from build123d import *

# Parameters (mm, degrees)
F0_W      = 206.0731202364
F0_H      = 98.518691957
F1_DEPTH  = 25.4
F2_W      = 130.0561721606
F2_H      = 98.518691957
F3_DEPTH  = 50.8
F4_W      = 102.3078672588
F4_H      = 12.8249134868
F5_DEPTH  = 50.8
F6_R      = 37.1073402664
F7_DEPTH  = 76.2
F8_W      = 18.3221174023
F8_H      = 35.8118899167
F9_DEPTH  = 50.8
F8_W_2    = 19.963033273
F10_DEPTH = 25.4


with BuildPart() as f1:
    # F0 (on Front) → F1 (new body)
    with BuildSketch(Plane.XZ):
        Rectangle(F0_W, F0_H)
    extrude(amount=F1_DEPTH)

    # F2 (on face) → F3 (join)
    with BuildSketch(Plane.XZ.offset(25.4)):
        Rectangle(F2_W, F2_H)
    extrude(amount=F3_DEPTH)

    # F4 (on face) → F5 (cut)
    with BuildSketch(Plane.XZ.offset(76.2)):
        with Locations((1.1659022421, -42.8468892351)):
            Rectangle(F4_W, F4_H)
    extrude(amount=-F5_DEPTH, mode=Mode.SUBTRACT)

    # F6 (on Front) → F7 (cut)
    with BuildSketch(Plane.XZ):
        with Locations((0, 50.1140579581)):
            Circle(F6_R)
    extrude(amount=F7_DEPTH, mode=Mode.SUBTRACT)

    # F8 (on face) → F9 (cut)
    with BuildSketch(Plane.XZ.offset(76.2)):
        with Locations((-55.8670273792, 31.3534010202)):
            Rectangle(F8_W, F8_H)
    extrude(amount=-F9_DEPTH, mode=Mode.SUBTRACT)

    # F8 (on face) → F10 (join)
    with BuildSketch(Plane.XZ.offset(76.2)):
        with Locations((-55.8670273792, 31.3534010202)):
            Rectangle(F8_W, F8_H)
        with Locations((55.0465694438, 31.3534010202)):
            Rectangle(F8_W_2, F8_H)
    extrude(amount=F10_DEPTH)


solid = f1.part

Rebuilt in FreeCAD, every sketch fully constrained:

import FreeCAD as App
import Part
import Sketcher

doc = App.newDocument("Part")
params = doc.addObject("Spreadsheet::Sheet", "Params")
for row, (alias, value) in enumerate([
    ("pad1_length", "1 in"),
    ("pad2_length", "2 in"),
    ("pocket1_length", "2 in"),
    ("pocket2_length", "3 in"),
    ("pocket3_length", "2 in"),
    ("pad3_length", "1 in"),
], start=1):
    params.set(f"A{row}", alias)
    params.set(f"B{row}", "=" + value)
    params.setAlias(f"B{row}", alias)

body = doc.addObject("PartDesign::Body", "Body")
body.AllowCompound = True

sketch1 = body.newObject("Sketcher::SketchObject", "Sketch")
sketch1.AttachmentSupport = (doc.getObject("XZ_Plane"), [""])
sketch1.MapMode = "FlatFace"
sketch1.addGeometry(Part.LineSegment(App.Vector(-103.03656, 49.259346, 0), App.Vector(-103.03656, -49.259346, 0)), False)
sketch1.addGeometry(Part.LineSegment(App.Vector(-103.03656, -49.259346, 0), App.Vector(103.03656, -49.259346, 0)), False)
sketch1.addGeometry(Part.LineSegment(App.Vector(103.03656, -49.259346, 0), App.Vector(103.03656, 49.259346, 0)), False)
sketch1.addGeometry(Part.LineSegment(App.Vector(103.03656, 49.259346, 0), App.Vector(-103.03656, 49.259346, 0)), False)
sketch1.addConstraint(Sketcher.Constraint("Coincident", 0, 2, 1, 1))
sketch1.addConstraint(Sketcher.Constraint("Coincident", 1, 2, 2, 1))
sketch1.addConstraint(Sketcher.Constraint("Coincident", 2, 2, 3, 1))
sketch1.addConstraint(Sketcher.Constraint("Coincident", 3, 2, 0, 1))
sketch1.addConstraint(Sketcher.Constraint("Vertical", 0))
sketch1.addConstraint(Sketcher.Constraint("Horizontal", 1))
sketch1.addConstraint(Sketcher.Constraint("Vertical", 2))
sketch1.addConstraint(Sketcher.Constraint("Horizontal", 3))
sketch1.addConstraint(Sketcher.Constraint("Symmetric", 0, 2, 2, 2, -1, 1))
sketch1.addConstraint(Sketcher.Constraint("DistanceX", 1, 1, 1, 2, 206.07312))
sketch1.addConstraint(Sketcher.Constraint("DistanceY", 0, 2, 0, 1, 98.518692))
pad1 = body.newObject("PartDesign::Pad", "Pad")
pad1.Profile = sketch1
pad1.setExpression("Length", "Params.pad1_length")

sketch2 = body.newObject("Sketcher::SketchObject", "Sketch001")
sketch2.AttachmentSupport = (doc.getObject("XZ_Plane"), [""])
sketch2.MapMode = "FlatFace"
sketch2.AttachmentOffset = App.Placement(App.Vector(0, 0, 1 * 25.4), App.Rotation())
sketch2.addGeometry(Part.LineSegment(App.Vector(-65.028086, 49.259346, 0), App.Vector(-65.028086, -49.259346, 0)), False)
sketch2.addGeometry(Part.LineSegment(App.Vector(-65.028086, -49.259346, 0), App.Vector(65.028086, -49.259346, 0)), False)
sketch2.addGeometry(Part.LineSegment(App.Vector(65.028086, -49.259346, 0), App.Vector(65.028086, 49.259346, 0)), False)
sketch2.addGeometry(Part.LineSegment(App.Vector(65.028086, 49.259346, 0), App.Vector(-65.028086, 49.259346, 0)), False)
sketch2.addConstraint(Sketcher.Constraint("Coincident", 0, 2, 1, 1))
sketch2.addConstraint(Sketcher.Constraint("Coincident", 1, 2, 2, 1))
sketch2.addConstraint(Sketcher.Constraint("Coincident", 2, 2, 3, 1))
sketch2.addConstraint(Sketcher.Constraint("Coincident", 3, 2, 0, 1))
sketch2.addConstraint(Sketcher.Constraint("Vertical", 0))
sketch2.addConstraint(Sketcher.Constraint("Horizontal", 1))
sketch2.addConstraint(Sketcher.Constraint("Vertical", 2))
sketch2.addConstraint(Sketcher.Constraint("Horizontal", 3))
sketch2.addConstraint(Sketcher.Constraint("Symmetric", 0, 2, 2, 2, -1, 1))
sketch2.addConstraint(Sketcher.Constraint("DistanceY", 0, 2, 0, 1, 98.518692))
sketch2.addConstraint(Sketcher.Constraint("DistanceX", 1, 1, 1, 2, 130.056172))
pad2 = body.newObject("PartDesign::Pad", "Pad001")
pad2.Profile = sketch2
pad2.setExpression("Length", "Params.pad2_length")

sketch3 = body.newObject("Sketcher::SketchObject", "Sketch002")
sketch3.AttachmentSupport = (doc.getObject("XZ_Plane"), [""])
sketch3.MapMode = "FlatFace"
sketch3.AttachmentOffset = App.Placement(App.Vector(0, 0, 3 * 25.4), App.Rotation())
sketch3.addGeometry(Part.LineSegment(App.Vector(-49.988031, -36.434432, 0), App.Vector(-49.988031, -49.259346, 0)), False)
sketch3.addGeometry(Part.LineSegment(App.Vector(-49.988031, -49.259346, 0), App.Vector(52.319836, -49.259346, 0)), False)
sketch3.addGeometry(Part.LineSegment(App.Vector(52.319836, -49.259346, 0), App.Vector(52.319836, -36.434432, 0)), False)
sketch3.addGeometry(Part.LineSegment(App.Vector(52.319836, -36.434432, 0), App.Vector(-49.988031, -36.434432, 0)), False)
sketch3.addConstraint(Sketcher.Constraint("Coincident", 0, 2, 1, 1))
sketch3.addConstraint(Sketcher.Constraint("Coincident", 1, 2, 2, 1))
sketch3.addConstraint(Sketcher.Constraint("Coincident", 2, 2, 3, 1))
sketch3.addConstraint(Sketcher.Constraint("Coincident", 3, 2, 0, 1))
sketch3.addConstraint(Sketcher.Constraint("Vertical", 0))
sketch3.addConstraint(Sketcher.Constraint("Horizontal", 1))
sketch3.addConstraint(Sketcher.Constraint("Vertical", 2))
sketch3.addConstraint(Sketcher.Constraint("Horizontal", 3))
sketch3.addConstraint(Sketcher.Constraint("DistanceX", 1, 1, 1, 2, 102.307867))
sketch3.addConstraint(Sketcher.Constraint("DistanceY", 0, 2, 0, 1, 12.824913))
sketch3.addConstraint(Sketcher.Constraint("DistanceX", 0, 2, -1, 1, 49.988031))
sketch3.addConstraint(Sketcher.Constraint("DistanceY", 0, 2, -1, 1, 49.259346))
pocket1 = body.newObject("PartDesign::Pocket", "Pocket")
pocket1.Profile = sketch3
pocket1.setExpression("Length", "Params.pocket1_length")

sketch4 = body.newObject("Sketcher::SketchObject", "Sketch003")
sketch4.AttachmentSupport = (doc.getObject("XZ_Plane"), [""])
sketch4.MapMode = "FlatFace"
sketch4.addGeometry(Part.Circle(App.Vector(0, 50.114058, 0), App.Vector(0, 0, 1), 37.10734), False)
sketch4.addConstraint(Sketcher.Constraint("PointOnObject", 0, 3, -2))
sketch4.addConstraint(Sketcher.Constraint("Diameter", 0, 74.214681))
sketch4.addConstraint(Sketcher.Constraint("DistanceY", -1, 1, 0, 3, 50.114058))
pocket2 = body.newObject("PartDesign::Pocket", "Pocket001")
pocket2.Profile = sketch4
pocket2.setExpression("Length", "Params.pocket2_length")
pocket2.Reversed = True

sketch5 = body.newObject("Sketcher::SketchObject", "Sketch004")
sketch5.AttachmentSupport = (doc.getObject("XZ_Plane"), [""])
sketch5.MapMode = "FlatFace"
sketch5.AttachmentOffset = App.Placement(App.Vector(0, 0, 3 * 25.4), App.Rotation())
sketch5.addGeometry(Part.LineSegment(App.Vector(-65.028086, 49.259346, 0), App.Vector(-65.028086, 13.447456, 0)), False)
sketch5.addGeometry(Part.LineSegment(App.Vector(-65.028086, 13.447456, 0), App.Vector(-46.705969, 13.447456, 0)), False)
sketch5.addGeometry(Part.LineSegment(App.Vector(-46.705969, 13.447456, 0), App.Vector(-46.705969, 49.259346, 0)), False)
sketch5.addGeometry(Part.LineSegment(App.Vector(-46.705969, 49.259346, 0), App.Vector(-65.028086, 49.259346, 0)), False)
sketch5.addConstraint(Sketcher.Constraint("Coincident", 0, 2, 1, 1))
sketch5.addConstraint(Sketcher.Constraint("Coincident", 1, 2, 2, 1))
sketch5.addConstraint(Sketcher.Constraint("Coincident", 2, 2, 3, 1))
sketch5.addConstraint(Sketcher.Constraint("Coincident", 3, 2, 0, 1))
sketch5.addConstraint(Sketcher.Constraint("Vertical", 0))
sketch5.addConstraint(Sketcher.Constraint("Horizontal", 1))
sketch5.addConstraint(Sketcher.Constraint("Vertical", 2))
sketch5.addConstraint(Sketcher.Constraint("Horizontal", 3))
sketch5.addConstraint(Sketcher.Constraint("DistanceY", 0, 2, 0, 1, 35.81189))
sketch5.addConstraint(Sketcher.Constraint("DistanceX", 1, 1, 1, 2, 18.322117))
sketch5.addConstraint(Sketcher.Constraint("DistanceX", 1, 2, -1, 1, 46.705969))
sketch5.addConstraint(Sketcher.Constraint("DistanceY", -1, 1, 0, 2, 13.447456))
pocket3 = body.newObject("PartDesign::Pocket", "Pocket002")
pocket3.Profile = sketch5
pocket3.setExpression("Length", "Params.pocket3_length")

sketch6 = body.newObject("Sketcher::SketchObject", "Sketch005")
sketch6.AttachmentSupport = (doc.getObject("XZ_Plane"), [""])
sketch6.MapMode = "FlatFace"
sketch6.AttachmentOffset = App.Placement(App.Vector(0, 0, 3 * 25.4), App.Rotation())
sketch6.addGeometry(Part.LineSegment(App.Vector(-65.028086, 49.259346, 0), App.Vector(-65.028086, 13.447456, 0)), False)
sketch6.addGeometry(Part.LineSegment(App.Vector(-65.028086, 13.447456, 0), App.Vector(-46.705969, 13.447456, 0)), False)
sketch6.addGeometry(Part.LineSegment(App.Vector(-46.705969, 13.447456, 0), App.Vector(-46.705969, 49.259346, 0)), False)
sketch6.addGeometry(Part.LineSegment(App.Vector(-46.705969, 49.259346, 0), App.Vector(-65.028086, 49.259346, 0)), False)
sketch6.addGeometry(Part.LineSegment(App.Vector(45.065053, 49.259346, 0), App.Vector(45.065053, 13.447456, 0)), False)
sketch6.addGeometry(Part.LineSegment(App.Vector(45.065053, 13.447456, 0), App.Vector(65.028086, 13.447456, 0)), False)
sketch6.addGeometry(Part.LineSegment(App.Vector(65.028086, 13.447456, 0), App.Vector(65.028086, 49.259346, 0)), False)
sketch6.addGeometry(Part.LineSegment(App.Vector(65.028086, 49.259346, 0), App.Vector(45.065053, 49.259346, 0)), False)
sketch6.addConstraint(Sketcher.Constraint("Coincident", 0, 2, 1, 1))
sketch6.addConstraint(Sketcher.Constraint("Coincident", 1, 2, 2, 1))
sketch6.addConstraint(Sketcher.Constraint("Coincident", 2, 2, 3, 1))
sketch6.addConstraint(Sketcher.Constraint("Coincident", 3, 2, 0, 1))
sketch6.addConstraint(Sketcher.Constraint("Coincident", 4, 2, 5, 1))
sketch6.addConstraint(Sketcher.Constraint("Coincident", 5, 2, 6, 1))
sketch6.addConstraint(Sketcher.Constraint("Coincident", 6, 2, 7, 1))
sketch6.addConstraint(Sketcher.Constraint("Coincident", 7, 2, 4, 1))
sketch6.addConstraint(Sketcher.Constraint("Vertical", 0))
sketch6.addConstraint(Sketcher.Constraint("Horizontal", 1))
sketch6.addConstraint(Sketcher.Constraint("Vertical", 2))
sketch6.addConstraint(Sketcher.Constraint("Horizontal", 3))
sketch6.addConstraint(Sketcher.Constraint("Vertical", 4))
sketch6.addConstraint(Sketcher.Constraint("Horizontal", 5))
sketch6.addConstraint(Sketcher.Constraint("Vertical", 6))
sketch6.addConstraint(Sketcher.Constraint("Horizontal", 7))
sketch6.addConstraint(Sketcher.Constraint("Symmetric", 0, 2, 5, 2, -2))
sketch6.addConstraint(Sketcher.Constraint("Horizontal", 3, 2, 6, 2))
sketch6.addConstraint(Sketcher.Constraint("DistanceY", 0, 2, 0, 1, 35.81189))
sketch6.addConstraint(Sketcher.Constraint("DistanceX", 1, 1, 1, 2, 18.322117))
sketch6.addConstraint(Sketcher.Constraint("DistanceX", 5, 1, 5, 2, 19.963033))
sketch6.addConstraint(Sketcher.Constraint("DistanceX", 1, 2, -1, 1, 46.705969))
sketch6.addConstraint(Sketcher.Constraint("DistanceY", -1, 1, 0, 2, 13.447456))
pad3 = body.newObject("PartDesign::Pad", "Pad002")
pad3.Profile = sketch6
pad3.setExpression("Length", "Params.pad3_length")

doc.recompute()
